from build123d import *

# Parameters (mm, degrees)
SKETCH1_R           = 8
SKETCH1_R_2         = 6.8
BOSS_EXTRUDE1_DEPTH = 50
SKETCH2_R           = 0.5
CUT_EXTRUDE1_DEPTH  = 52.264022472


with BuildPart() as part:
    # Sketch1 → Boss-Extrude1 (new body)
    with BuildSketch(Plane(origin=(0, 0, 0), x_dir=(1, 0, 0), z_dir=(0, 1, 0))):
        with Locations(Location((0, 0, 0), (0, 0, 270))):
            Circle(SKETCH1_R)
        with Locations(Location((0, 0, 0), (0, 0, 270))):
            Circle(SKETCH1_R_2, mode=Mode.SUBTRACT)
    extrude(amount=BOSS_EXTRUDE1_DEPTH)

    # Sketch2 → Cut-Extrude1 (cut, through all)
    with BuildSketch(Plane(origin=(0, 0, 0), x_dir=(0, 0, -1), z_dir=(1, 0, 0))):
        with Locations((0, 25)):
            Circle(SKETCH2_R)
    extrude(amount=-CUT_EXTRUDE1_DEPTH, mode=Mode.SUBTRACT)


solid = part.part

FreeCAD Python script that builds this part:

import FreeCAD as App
import Part
import Sketcher

V = App.Vector

doc = App.newDocument("Part")
body = doc.addObject("PartDesign::Body", "Body")

# Sketch on XZ plane
sketch1 = body.newObject("Sketcher::SketchObject", "Sketch")
sketch1.AttachmentSupport = (doc.getObject("XZ_Plane"), [""])
sketch1.MapMode = "FlatFace"
sketch1.addGeometry([
    Part.Circle(V(0, 0, 0), V(0, 0, 1), 8),
    Part.Circle(V(0, 0, 0), V(0, 0, 1), 7),
], False)
sketch1.addConstraint([
    Sketcher.Constraint("Coincident", 0, 3, -1, 1),
    Sketcher.Constraint("Coincident", 1, 3, -1, 1),
    Sketcher.Constraint("Diameter", 0, 16.0),
    Sketcher.Constraint("Diameter", 1, 13.6),
])
pad1 = body.newObject("PartDesign::Pad", "Pad")
pad1.Profile = sketch1
pad1.Length = 50
pad1.Reversed = True

# Sketch on YZ plane
sketch2 = body.newObject("Sketcher::SketchObject", "Sketch001")
sketch2.AttachmentSupport = (doc.getObject("YZ_Plane"), [""])
sketch2.MapMode = "FlatFace"
sketch2.addGeometry(Part.Circle(V(25, 0, 0), V(0, 0, 1), 0.5), False)
sketch2.addConstraint([
    Sketcher.Constraint("PointOnObject", 0, 3, -1),
    Sketcher.Constraint("Diameter", 0, 1.0),
    Sketcher.Constraint("DistanceX", -1, 1, 0, 3, 25.0),
])
pocket1 = body.newObject("PartDesign::Pocket", "Pocket")
pocket1.Profile = sketch2
pocket1.Type = "ThroughAll"

doc.recompute()
